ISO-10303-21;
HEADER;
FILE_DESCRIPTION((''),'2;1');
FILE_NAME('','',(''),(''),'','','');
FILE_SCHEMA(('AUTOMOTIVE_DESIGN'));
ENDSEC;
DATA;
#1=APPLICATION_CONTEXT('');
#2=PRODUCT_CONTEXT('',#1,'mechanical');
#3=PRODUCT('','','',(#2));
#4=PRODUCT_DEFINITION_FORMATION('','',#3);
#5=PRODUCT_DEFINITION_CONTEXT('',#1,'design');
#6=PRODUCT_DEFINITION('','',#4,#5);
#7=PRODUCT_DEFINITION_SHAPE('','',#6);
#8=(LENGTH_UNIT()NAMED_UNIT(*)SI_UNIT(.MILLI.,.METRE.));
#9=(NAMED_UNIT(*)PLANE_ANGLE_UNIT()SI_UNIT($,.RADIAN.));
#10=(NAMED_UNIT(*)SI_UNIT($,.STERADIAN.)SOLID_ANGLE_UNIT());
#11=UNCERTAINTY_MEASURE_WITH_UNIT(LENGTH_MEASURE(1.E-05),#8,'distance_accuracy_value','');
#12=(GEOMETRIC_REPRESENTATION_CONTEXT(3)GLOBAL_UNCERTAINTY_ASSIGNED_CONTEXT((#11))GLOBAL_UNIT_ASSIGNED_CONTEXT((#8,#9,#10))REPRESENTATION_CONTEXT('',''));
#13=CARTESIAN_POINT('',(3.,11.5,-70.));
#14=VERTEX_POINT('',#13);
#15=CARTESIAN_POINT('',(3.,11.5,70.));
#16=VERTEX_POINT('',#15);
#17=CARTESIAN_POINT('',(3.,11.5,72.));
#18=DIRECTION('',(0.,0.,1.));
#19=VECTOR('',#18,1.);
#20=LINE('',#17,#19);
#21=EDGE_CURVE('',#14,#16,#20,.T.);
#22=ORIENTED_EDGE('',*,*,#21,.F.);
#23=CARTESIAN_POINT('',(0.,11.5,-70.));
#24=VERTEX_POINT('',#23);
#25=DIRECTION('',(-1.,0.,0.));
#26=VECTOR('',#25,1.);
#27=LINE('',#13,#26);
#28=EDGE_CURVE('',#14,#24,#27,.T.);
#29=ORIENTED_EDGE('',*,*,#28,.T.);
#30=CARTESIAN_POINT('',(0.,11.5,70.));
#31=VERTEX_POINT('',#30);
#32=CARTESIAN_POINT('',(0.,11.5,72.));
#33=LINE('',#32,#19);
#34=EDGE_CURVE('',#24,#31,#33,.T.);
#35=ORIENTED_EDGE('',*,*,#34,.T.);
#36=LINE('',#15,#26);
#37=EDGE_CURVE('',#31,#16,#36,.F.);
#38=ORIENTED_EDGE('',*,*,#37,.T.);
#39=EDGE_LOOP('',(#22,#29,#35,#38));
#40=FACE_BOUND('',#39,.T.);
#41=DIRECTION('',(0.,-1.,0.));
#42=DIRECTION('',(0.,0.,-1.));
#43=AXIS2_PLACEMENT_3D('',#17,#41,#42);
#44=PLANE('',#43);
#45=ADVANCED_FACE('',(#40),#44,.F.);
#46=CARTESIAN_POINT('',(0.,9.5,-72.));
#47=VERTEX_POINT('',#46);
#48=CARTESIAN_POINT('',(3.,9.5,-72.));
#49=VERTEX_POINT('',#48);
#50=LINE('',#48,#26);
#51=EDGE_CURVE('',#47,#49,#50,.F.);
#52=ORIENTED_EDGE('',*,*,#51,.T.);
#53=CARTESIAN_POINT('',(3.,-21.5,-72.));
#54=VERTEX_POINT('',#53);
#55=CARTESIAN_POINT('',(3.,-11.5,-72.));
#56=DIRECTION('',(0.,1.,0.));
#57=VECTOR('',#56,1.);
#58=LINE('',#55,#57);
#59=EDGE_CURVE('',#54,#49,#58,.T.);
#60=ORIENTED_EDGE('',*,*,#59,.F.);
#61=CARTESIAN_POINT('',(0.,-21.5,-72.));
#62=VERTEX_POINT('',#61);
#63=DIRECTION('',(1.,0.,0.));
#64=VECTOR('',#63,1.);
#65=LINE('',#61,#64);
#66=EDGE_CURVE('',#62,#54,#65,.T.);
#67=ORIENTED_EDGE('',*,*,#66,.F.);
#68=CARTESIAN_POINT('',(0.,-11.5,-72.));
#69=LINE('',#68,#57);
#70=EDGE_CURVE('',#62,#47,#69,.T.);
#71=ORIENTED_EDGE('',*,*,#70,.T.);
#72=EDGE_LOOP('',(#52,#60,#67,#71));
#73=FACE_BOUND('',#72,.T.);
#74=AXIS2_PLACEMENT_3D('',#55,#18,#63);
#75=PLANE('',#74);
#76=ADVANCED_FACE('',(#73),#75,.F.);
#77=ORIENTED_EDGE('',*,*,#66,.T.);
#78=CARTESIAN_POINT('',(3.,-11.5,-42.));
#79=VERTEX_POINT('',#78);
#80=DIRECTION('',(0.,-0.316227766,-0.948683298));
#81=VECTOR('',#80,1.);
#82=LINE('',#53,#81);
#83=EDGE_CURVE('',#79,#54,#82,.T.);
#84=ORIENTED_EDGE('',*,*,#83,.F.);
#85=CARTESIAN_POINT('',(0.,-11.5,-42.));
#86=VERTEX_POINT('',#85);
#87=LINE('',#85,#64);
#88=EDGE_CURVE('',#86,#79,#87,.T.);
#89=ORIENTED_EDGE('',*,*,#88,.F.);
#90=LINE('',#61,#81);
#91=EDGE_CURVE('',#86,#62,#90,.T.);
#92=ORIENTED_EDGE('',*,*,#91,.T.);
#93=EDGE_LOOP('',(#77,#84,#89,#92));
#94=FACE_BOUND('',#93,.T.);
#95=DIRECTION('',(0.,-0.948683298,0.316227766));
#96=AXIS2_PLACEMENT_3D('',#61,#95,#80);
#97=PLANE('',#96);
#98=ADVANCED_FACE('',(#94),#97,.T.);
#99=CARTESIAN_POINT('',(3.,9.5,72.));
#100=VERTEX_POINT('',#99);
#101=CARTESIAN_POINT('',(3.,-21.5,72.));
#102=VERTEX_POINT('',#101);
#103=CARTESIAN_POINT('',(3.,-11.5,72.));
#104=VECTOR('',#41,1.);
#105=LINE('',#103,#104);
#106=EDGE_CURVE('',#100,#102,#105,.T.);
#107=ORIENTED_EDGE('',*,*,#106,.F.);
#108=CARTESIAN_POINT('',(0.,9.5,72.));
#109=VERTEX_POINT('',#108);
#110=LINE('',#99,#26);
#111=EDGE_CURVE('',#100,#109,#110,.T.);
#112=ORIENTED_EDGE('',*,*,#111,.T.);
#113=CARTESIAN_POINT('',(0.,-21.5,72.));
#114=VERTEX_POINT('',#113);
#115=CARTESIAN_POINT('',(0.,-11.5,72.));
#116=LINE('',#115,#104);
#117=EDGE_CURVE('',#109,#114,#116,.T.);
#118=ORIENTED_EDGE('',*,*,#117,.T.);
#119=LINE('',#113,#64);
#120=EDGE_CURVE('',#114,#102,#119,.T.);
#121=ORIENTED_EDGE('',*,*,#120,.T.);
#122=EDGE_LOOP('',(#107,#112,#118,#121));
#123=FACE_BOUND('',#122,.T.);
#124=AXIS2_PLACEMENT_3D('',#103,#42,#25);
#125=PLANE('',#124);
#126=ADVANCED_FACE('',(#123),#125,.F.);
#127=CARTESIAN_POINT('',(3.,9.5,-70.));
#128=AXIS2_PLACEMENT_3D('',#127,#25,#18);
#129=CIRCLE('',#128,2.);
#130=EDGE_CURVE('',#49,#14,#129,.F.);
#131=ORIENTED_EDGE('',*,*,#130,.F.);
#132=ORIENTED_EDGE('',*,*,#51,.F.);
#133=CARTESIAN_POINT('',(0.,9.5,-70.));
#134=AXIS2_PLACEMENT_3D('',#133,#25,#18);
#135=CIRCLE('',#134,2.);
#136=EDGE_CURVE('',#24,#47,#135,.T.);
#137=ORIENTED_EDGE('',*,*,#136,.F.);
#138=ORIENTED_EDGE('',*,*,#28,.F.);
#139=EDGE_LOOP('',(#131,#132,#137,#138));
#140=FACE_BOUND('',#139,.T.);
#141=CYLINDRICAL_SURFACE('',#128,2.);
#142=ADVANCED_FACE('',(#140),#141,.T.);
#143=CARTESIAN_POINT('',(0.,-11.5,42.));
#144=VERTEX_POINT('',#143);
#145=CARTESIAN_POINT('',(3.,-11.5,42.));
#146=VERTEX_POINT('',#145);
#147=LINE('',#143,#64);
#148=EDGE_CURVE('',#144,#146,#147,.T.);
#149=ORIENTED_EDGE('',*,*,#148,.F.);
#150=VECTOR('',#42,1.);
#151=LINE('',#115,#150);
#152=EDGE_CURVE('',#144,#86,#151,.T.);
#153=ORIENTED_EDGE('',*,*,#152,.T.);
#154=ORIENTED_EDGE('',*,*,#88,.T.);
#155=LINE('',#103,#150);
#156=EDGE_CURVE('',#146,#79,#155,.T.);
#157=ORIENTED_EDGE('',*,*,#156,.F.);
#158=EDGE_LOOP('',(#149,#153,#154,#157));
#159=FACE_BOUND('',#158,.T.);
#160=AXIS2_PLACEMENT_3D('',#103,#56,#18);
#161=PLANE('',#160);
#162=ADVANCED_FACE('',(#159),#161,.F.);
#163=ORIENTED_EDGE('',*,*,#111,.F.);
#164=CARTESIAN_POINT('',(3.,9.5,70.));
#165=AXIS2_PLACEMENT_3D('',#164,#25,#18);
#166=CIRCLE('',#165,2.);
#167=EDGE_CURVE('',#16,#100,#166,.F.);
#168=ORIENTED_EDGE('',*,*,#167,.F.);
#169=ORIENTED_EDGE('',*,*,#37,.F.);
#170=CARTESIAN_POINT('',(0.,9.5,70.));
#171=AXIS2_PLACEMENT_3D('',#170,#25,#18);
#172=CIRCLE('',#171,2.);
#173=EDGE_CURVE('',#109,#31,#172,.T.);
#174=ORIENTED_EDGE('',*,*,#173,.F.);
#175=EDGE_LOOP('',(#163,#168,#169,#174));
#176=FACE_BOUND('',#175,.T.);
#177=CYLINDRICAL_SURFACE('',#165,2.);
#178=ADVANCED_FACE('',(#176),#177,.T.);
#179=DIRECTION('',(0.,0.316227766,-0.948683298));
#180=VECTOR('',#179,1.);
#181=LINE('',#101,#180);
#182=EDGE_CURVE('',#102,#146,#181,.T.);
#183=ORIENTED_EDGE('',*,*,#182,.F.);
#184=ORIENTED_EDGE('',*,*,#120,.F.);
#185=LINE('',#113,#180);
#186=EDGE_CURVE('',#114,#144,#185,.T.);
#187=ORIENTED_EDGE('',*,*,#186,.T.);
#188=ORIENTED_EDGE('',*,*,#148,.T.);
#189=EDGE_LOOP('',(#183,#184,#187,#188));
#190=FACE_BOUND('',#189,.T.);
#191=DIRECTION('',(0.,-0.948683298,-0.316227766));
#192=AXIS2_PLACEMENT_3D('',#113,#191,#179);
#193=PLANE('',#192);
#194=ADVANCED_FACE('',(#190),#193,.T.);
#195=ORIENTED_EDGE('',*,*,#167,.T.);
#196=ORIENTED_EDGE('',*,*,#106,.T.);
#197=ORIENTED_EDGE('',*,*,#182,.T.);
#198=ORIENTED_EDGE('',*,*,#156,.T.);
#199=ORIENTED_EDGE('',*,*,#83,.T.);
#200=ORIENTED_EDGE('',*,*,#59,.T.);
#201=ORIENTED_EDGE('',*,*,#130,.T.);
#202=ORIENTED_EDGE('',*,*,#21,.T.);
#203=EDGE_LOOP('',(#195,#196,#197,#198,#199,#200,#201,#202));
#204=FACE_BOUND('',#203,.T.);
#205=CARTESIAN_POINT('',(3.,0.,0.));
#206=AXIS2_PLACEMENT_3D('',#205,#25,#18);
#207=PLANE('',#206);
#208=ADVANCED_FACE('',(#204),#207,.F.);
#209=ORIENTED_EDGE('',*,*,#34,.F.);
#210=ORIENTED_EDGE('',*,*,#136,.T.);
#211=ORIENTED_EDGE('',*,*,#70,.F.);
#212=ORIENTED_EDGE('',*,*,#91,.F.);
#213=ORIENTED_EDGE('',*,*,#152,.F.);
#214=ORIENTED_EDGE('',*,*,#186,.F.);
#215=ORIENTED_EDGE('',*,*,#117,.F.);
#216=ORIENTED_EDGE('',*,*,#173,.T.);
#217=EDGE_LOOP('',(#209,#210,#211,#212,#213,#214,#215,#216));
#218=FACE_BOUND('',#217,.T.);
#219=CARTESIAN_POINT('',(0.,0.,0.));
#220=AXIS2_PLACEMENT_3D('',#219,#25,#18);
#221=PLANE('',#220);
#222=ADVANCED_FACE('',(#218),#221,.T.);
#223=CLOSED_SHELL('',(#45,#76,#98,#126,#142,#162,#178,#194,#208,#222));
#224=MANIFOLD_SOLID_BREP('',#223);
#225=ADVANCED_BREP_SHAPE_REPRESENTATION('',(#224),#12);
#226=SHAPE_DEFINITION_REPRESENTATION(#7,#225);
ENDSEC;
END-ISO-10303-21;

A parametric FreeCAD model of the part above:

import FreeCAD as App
import Part
import Sketcher
from FreeCAD import Vector
Q = App.Units.Quantity


def edges_at(feature, points):
    """Names of the edges that pass closest to the given points."""
    edges = feature.Shape.Edges
    near = lambda p: min(range(len(edges)), key=lambda i: edges[i].distToShape(Part.Vertex(*p))[0])
    return sorted({f"Edge{near(p) + 1}" for p in points})


def add_polygon(sketch, points):
    """Adds a closed chain of lines whose ends are joined by coincident constraints."""
    first, n = sketch.GeometryCount, len(points)
    for a, b in zip(points, points[1:] + points[:1]):
        sketch.addGeometry(Part.LineSegment(App.Vector(*a, 0), App.Vector(*b, 0)), False)
    for i in range(n):
        sketch.addConstraint(Sketcher.Constraint("Coincident", first + i, 2, first + (i + 1) % n, 1))

doc = App.newDocument("Part")
body = doc.addObject("PartDesign::Body", "Body")

sketch1 = body.newObject("Sketcher::SketchObject", "Sketch")
sketch1.AttachmentSupport = (doc.getObject("YZ_Plane"), [""])
sketch1.MapMode = "FlatFace"
add_polygon(sketch1, [(12, 72), (-12, 72), (-12, -72), (12, -72)])
sketch1.addConstraint([
    Sketcher.Constraint("Horizontal", 0),
    Sketcher.Constraint("Vertical", 1),
    Sketcher.Constraint("Horizontal", 2),
    Sketcher.Constraint("Vertical", 3),
    Sketcher.Constraint("Symmetric", 0, 2, 2, 2, -1, 1),
    Sketcher.Constraint("DistanceX", 0, 2, 0, 1, Q("23 mm")),
    Sketcher.Constraint("DistanceY", 1, 2, 1, 1, Q("144 mm")),
])
pad1 = body.newObject("PartDesign::Pad", "Pad")
pad1.Profile = sketch1
pad1.Length = 3
doc.recompute()

fillet = body.newObject("PartDesign::Fillet", "Fillet")
fillet.Base = (pad1, edges_at(pad1, [(1.5, 11.5, 72), (1.5, 11.5, -72)]))
fillet.Radius = 2

sketch2 = body.newObject("Sketcher::SketchObject", "Sketch001")
sketch2.AttachmentSupport = (doc.getObject("YZ_Plane"), [""])
sketch2.MapMode = "FlatFace"
sketch2.AttachmentOffset = App.Placement(Vector(0, 0, 3), App.Rotation())
add_polygon(sketch2, [(-12, 72), (-22, 72), (-12, 42)])
add_polygon(sketch2, [(-22, -72), (-12, -72), (-12, -42)])
sketch2.addConstraint([
    Sketcher.Constraint("Horizontal", 0),
    Sketcher.Constraint("Vertical", 2),
    Sketcher.Constraint("Horizontal", 3),
    Sketcher.Constraint("Vertical", 4),
    Sketcher.Constraint("Symmetric", 2, 2, 3, 2, -1),
    Sketcher.Constraint("Vertical", 0, 2, 5, 2),
    Sketcher.Constraint("Equal", 2, 4),
    Sketcher.Constraint("DistanceX", 0, 2, 0, 1, Q("10 mm")),
    Sketcher.Constraint("DistanceY", 2, 1, 2, 2, Q("30 mm")),
    Sketcher.Constraint("DistanceY", -1, 1, 0, 2, Q("72 mm")),
    Sketcher.Constraint("DistanceX", 0, 2, -1, 1, Q("21.5 mm")),
])
pad2 = body.newObject("PartDesign::Pad", "Pad001")
pad2.Profile = sketch2
pad2.Length = 3
pad2.Reversed = True

doc.recompute()
